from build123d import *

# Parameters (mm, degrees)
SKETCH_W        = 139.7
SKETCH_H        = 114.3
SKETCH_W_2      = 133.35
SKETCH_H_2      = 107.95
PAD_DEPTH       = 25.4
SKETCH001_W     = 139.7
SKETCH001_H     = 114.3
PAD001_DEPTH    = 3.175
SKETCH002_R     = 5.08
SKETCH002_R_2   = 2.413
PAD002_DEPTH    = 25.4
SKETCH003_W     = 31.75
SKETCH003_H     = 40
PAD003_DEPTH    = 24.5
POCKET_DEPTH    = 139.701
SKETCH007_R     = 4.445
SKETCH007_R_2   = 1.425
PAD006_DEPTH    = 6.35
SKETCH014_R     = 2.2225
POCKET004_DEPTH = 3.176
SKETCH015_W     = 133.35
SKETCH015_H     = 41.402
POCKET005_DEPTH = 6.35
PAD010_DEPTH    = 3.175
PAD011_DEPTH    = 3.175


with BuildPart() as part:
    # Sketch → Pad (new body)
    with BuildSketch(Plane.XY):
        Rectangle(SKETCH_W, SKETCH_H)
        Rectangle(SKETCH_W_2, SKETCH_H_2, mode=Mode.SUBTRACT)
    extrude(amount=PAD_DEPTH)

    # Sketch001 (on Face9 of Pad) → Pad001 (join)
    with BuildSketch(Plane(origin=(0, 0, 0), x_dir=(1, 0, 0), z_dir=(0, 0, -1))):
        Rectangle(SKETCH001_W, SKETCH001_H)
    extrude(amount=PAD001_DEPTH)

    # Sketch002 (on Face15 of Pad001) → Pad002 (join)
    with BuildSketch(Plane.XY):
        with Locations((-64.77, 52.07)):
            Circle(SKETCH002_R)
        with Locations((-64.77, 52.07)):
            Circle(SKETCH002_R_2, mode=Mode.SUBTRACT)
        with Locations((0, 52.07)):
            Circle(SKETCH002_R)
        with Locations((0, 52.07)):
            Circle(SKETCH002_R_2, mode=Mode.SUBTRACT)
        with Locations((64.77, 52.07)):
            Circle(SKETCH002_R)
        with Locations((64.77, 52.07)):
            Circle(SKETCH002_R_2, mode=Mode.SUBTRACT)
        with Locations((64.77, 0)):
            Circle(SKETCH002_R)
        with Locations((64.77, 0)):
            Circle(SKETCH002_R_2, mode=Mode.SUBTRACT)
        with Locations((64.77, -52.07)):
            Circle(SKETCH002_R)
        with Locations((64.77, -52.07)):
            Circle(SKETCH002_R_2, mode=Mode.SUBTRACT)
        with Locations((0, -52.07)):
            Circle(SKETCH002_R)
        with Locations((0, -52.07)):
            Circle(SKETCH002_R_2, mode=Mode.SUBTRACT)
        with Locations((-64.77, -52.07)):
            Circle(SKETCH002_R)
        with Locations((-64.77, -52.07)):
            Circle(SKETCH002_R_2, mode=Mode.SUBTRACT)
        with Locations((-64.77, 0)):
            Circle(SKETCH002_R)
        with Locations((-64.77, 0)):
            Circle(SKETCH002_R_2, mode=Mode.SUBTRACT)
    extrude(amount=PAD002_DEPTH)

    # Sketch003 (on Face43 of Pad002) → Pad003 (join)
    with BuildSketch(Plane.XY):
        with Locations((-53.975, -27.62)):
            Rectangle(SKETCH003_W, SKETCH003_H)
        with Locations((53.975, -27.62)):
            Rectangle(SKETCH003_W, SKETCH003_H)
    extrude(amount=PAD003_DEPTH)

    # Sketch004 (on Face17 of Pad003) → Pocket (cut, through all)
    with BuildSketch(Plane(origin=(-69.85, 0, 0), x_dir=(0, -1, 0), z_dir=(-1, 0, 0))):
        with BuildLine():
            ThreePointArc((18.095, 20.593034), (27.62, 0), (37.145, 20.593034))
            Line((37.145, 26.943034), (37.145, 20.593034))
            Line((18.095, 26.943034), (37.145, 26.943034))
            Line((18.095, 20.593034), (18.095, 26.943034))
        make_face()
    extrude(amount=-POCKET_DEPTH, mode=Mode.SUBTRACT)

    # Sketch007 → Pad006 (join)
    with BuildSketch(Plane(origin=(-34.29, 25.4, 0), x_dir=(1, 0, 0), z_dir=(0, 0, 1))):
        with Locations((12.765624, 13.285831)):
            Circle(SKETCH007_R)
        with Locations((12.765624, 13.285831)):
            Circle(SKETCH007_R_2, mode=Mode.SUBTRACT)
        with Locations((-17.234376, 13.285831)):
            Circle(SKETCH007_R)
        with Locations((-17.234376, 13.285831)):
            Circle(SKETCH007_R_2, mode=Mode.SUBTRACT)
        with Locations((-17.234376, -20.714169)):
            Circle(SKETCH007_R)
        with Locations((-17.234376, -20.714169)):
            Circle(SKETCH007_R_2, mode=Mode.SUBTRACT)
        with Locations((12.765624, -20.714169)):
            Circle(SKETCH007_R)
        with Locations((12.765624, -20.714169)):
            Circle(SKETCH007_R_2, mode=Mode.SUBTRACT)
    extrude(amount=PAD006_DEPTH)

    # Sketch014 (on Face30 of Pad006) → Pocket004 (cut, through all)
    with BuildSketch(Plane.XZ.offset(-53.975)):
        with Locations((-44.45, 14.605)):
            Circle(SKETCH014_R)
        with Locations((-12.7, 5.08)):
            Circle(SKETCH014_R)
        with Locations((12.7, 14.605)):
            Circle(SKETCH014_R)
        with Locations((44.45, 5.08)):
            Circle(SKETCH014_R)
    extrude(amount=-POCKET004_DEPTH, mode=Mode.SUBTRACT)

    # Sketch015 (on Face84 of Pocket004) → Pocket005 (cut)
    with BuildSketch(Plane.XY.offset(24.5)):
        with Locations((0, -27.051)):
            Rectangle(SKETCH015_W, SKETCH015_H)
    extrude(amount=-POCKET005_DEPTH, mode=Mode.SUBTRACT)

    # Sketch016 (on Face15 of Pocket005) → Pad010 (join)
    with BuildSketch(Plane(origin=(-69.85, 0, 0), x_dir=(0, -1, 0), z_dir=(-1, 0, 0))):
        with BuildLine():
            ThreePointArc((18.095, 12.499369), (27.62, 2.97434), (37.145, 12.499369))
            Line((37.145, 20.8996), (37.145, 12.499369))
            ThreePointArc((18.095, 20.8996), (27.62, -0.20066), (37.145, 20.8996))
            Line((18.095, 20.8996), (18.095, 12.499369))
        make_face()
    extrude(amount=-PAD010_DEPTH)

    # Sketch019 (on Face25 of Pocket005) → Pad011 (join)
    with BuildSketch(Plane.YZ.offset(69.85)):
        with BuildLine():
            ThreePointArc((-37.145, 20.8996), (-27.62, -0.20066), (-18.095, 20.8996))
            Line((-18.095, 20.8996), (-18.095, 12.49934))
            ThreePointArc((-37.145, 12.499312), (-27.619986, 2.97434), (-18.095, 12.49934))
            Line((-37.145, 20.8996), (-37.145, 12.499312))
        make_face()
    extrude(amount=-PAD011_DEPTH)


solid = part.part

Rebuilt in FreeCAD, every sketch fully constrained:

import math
import FreeCAD as App
import Part
import Sketcher
Q = App.Units.Quantity


def add_polygon(sketch, points):
    """Adds a closed chain of lines whose ends are joined by coincident constraints."""
    first, n = sketch.GeometryCount, len(points)
    for a, b in zip(points, points[1:] + points[:1]):
        sketch.addGeometry(Part.LineSegment(App.Vector(*a, 0), App.Vector(*b, 0)), False)
    for i in range(n):
        sketch.addConstraint(Sketcher.Constraint("Coincident", first + i, 2, first + (i + 1) % n, 1))

doc = App.newDocument("Part")
params = doc.addObject("Spreadsheet::Sheet", "Params")
for row, (alias, value) in enumerate([
    ("sketch1_width", "5.5 in"),
    ("sketch1_height", "4.5 in"),
    ("sketch1_width2", "5.25 in"),
    ("sketch1_height2", "4.25 in"),
    ("pad1_length", "1 in"),
    ("sketch2_width", "5.5 in"),
    ("sketch2_height", "4.5 in"),
    ("pad2_length", "0.125 in"),
    ("sketch3_diameter", "0.4 in"),
    ("sketch3_diameter2", "0.19 in"),
    ("pad3_length", "1 in"),
    ("sketch4_width", "1.25 in"),
    ("pad4_length", "24.5 mm"),
    ("sketch5_width", "0.75 in"),
    ("sketch5_height", "0.25 in"),
    ("sketch6_diameter", "0.35 in"),
    ("pad5_length", "0.25 in"),
    ("sketch7_diameter", "0.175 in"),
    ("sketch8_width", "5.25 in"),
    ("sketch8_height", "1.63 in"),
    ("pocket3_length", "0.25 in"),
    ("sketch9_radius", "0.5 in"),
    ("sketch9_radius2", "0.375 in"),
    ("pad6_length", "0.125 in"),
    ("sketch10_radius", "0.5 in"),
    ("sketch10_radius2", "0.375 in"),
    ("pad7_length", "0.125 in"),
], start=1):
    params.set(f"A{row}", alias)
    params.set(f"B{row}", "=" + value)
    params.setAlias(f"B{row}", alias)

body = doc.addObject("PartDesign::Body", "Body")

sketch1 = body.newObject("Sketcher::SketchObject", "Sketch")
sketch1.AttachmentSupport = (doc.getObject("XY_Plane"), [""])
sketch1.MapMode = "FlatFace"
add_polygon(sketch1, [(-70, 57), (-70, -57), (70, -57), (70, 57)])
add_polygon(sketch1, [(67, -54), (-67, -54), (-67, 54), (67, 54)])
sketch1.addConstraint(Sketcher.Constraint("Vertical", 0))
sketch1.addConstraint(Sketcher.Constraint("Horizontal", 1))
sketch1.addConstraint(Sketcher.Constraint("Vertical", 2))
sketch1.addConstraint(Sketcher.Constraint("Horizontal", 3))
sketch1.addConstraint(Sketcher.Constraint("Horizontal", 4))
sketch1.addConstraint(Sketcher.Constraint("Vertical", 5))
sketch1.addConstraint(Sketcher.Constraint("Horizontal", 6))
sketch1.addConstraint(Sketcher.Constraint("Vertical", 7))
sketch1.addConstraint(Sketcher.Constraint("Symmetric", 0, 2, 2, 2, -1, 1))
sketch1.addConstraint(Sketcher.Constraint("Symmetric", 4, 2, 6, 2, -1, 1))
sketch1.addConstraint(Sketcher.Constraint("DistanceX", 1, 1, 1, 2, Q("5.5 in")))
sketch1.addConstraint(Sketcher.Constraint("DistanceY", 0, 2, 0, 1, Q("4.5 in")))
sketch1.addConstraint(Sketcher.Constraint("DistanceX", 4, 2, 4, 1, Q("5.25 in")))
sketch1.addConstraint(Sketcher.Constraint("DistanceY", 5, 1, 5, 2, Q("4.25 in")))
sketch1.setExpression("Constraints[18]", "Params.sketch1_width")
sketch1.setExpression("Constraints[19]", "Params.sketch1_height")
sketch1.setExpression("Constraints[20]", "Params.sketch1_width2")
sketch1.setExpression("Constraints[21]", "Params.sketch1_height2")
pad1 = body.newObject("PartDesign::Pad", "Pad")
pad1.Profile = sketch1
pad1.setExpression("Length", "Params.pad1_length")

sketch2 = body.newObject("Sketcher::SketchObject", "Sketch001")
sketch2.AttachmentSupport = (doc.getObject("XY_Plane"), [""])
sketch2.MapMode = "FlatFace"
add_polygon(sketch2, [(-70, -57), (-70, 57), (70, 57), (70, -57)])
sketch2.addConstraint(Sketcher.Constraint("Vertical", 0))
sketch2.addConstraint(Sketcher.Constraint("Horizontal", 1))
sketch2.addConstraint(Sketcher.Constraint("Vertical", 2))
sketch2.addConstraint(Sketcher.Constraint("Horizontal", 3))
sketch2.addConstraint(Sketcher.Constraint("Symmetric", 0, 2, 2, 2, -1, 1))
sketch2.addConstraint(Sketcher.Constraint("DistanceX", 1, 1, 1, 2, Q("5.5 in")))
sketch2.addConstraint(Sketcher.Constraint("DistanceY", 0, 1, 0, 2, Q("4.5 in")))
sketch2.setExpression("Constraints[9]", "Params.sketch2_width")
sketch2.setExpression("Constraints[10]", "Params.sketch2_height")
pad2 = body.newObject("PartDesign::Pad", "Pad001")
pad2.Profile = sketch2
pad2.setExpression("Length", "Params.pad2_length")
pad2.Reversed = True

sketch3 = body.newObject("Sketcher::SketchObject", "Sketch002")
sketch3.AttachmentSupport = (doc.getObject("XY_Plane"), [""])
sketch3.MapMode = "FlatFace"
sketch3.addGeometry(Part.Circle(App.Vector(-64.8, 52.1, 0), App.Vector(0, 0, 1), 5.1), False)
sketch3.addGeometry(Part.Circle(App.Vector(-64.8, 52.1, 0), App.Vector(0, 0, 1), 2.4), False)
sketch3.addGeometry(Part.Circle(App.Vector(0, 52.1, 0), App.Vector(0, 0, 1), 5.1), False)
sketch3.addGeometry(Part.Circle(App.Vector(0, 52.1, 0), App.Vector(0, 0, 1), 2.4), False)
sketch3.addGeometry(Part.Circle(App.Vector(64.8, 52.1, 0), App.Vector(0, 0, 1), 5.1), False)
sketch3.addGeometry(Part.Circle(App.Vector(64.8, 52.1, 0), App.Vector(0, 0, 1), 2.4), False)
sketch3.addGeometry(Part.Circle(App.Vector(64.8, 0, 0), App.Vector(0, 0, 1), 5.1), False)
sketch3.addGeometry(Part.Circle(App.Vector(64.8, 0, 0), App.Vector(0, 0, 1), 2.4), False)
sketch3.addGeometry(Part.Circle(App.Vector(64.8, -52.1, 0), App.Vector(0, 0, 1), 5.1), False)
sketch3.addGeometry(Part.Circle(App.Vector(64.8, -52.1, 0), App.Vector(0, 0, 1), 2.4), False)
sketch3.addGeometry(Part.Circle(App.Vector(0, -52.1, 0), App.Vector(0, 0, 1), 5.1), False)
sketch3.addGeometry(Part.Circle(App.Vector(0, -52.1, 0), App.Vector(0, 0, 1), 2.4), False)
sketch3.addGeometry(Part.Circle(App.Vector(-64.8, -52.1, 0), App.Vector(0, 0, 1), 5.1), False)
sketch3.addGeometry(Part.Circle(App.Vector(-64.8, -52.1, 0), App.Vector(0, 0, 1), 2.4), False)
sketch3.addGeometry(Part.Circle(App.Vector(-64.8, 0, 0), App.Vector(0, 0, 1), 5.1), False)
sketch3.addGeometry(Part.Circle(App.Vector(-64.8, 0, 0), App.Vector(0, 0, 1), 2.4), False)
sketch3.addConstraint(Sketcher.Constraint("Coincident", 1, 3, 0, 3))
sketch3.addConstraint(Sketcher.Constraint("Coincident", 3, 3, 2, 3))
sketch3.addConstraint(Sketcher.Constraint("Coincident", 5, 3, 4, 3))
sketch3.addConstraint(Sketcher.Constraint("Coincident", 7, 3, 6, 3))
sketch3.addConstraint(Sketcher.Constraint("Coincident", 9, 3, 8, 3))
sketch3.addConstraint(Sketcher.Constraint("Coincident", 11, 3, 10, 3))
sketch3.addConstraint(Sketcher.Constraint("Coincident", 13, 3, 12, 3))
sketch3.addConstraint(Sketcher.Constraint("Coincident", 15, 3, 14, 3))
sketch3.addConstraint(Sketcher.Constraint("Equal", 0, 2))
sketch3.addConstraint(Sketcher.Constraint("Equal", 1, 3))
sketch3.addConstraint(Sketcher.Constraint("Equal", 2, 4))
sketch3.addConstraint(Sketcher.Constraint("Equal", 3, 5))
sketch3.addConstraint(Sketcher.Constraint("Equal", 4, 6))
sketch3.addConstraint(Sketcher.Constraint("Equal", 5, 7))
sketch3.addConstraint(Sketcher.Constraint("Equal", 6, 8))
sketch3.addConstraint(Sketcher.Constraint("Equal", 7, 9))
sketch3.addConstraint(Sketcher.Constraint("Equal", 8, 10))
sketch3.addConstraint(Sketcher.Constraint("Equal", 9, 11))
sketch3.addConstraint(Sketcher.Constraint("Equal", 10, 12))
sketch3.addConstraint(Sketcher.Constraint("Equal", 11, 13))
sketch3.addConstraint(Sketcher.Constraint("Equal", 12, 14))
sketch3.addConstraint(Sketcher.Constraint("Equal", 13, 15))
sketch3.addConstraint(Sketcher.Constraint("Symmetric", 0, 3, 8, 3, -1, 1))
sketch3.addConstraint(Sketcher.Constraint("Symmetric", 2, 3, 10, 3, -1, 1))
sketch3.addConstraint(Sketcher.Constraint("Symmetric", 4, 3, 12, 3, -1, 1))
sketch3.addConstraint(Sketcher.Constraint("Symmetric", 6, 3, 14, 3, -1, 1))
sketch3.addConstraint(Sketcher.Constraint("Symmetric", 0, 3, 4, 3, -2))
sketch3.addConstraint(Sketcher.Constraint("PointOnObject", 2, 3, -2))
sketch3.addConstraint(Sketcher.Constraint("PointOnObject", 6, 3, -1))
sketch3.addConstraint(Sketcher.Constraint("Horizontal", 1, 3, 2, 3))
sketch3.addConstraint(Sketcher.Constraint("Vertical", 5, 3, 6, 3))
sketch3.addConstraint(Sketcher.Constraint("Diameter", 0, Q("0.4 in")))
sketch3.addConstraint(Sketcher.Constraint("Diameter", 1, Q("0.19 in")))
sketch3.addConstraint(Sketcher.Constraint("DistanceX", 0, 3, 4, 3, Q("5.1 in")))
sketch3.addConstraint(Sketcher.Constraint("DistanceY", 8, 3, 4, 3, Q("4.1 in")))
sketch3.setExpression("Constraints[31]", "Params.sketch3_diameter")
sketch3.setExpression("Constraints[32]", "Params.sketch3_diameter2")
pad3 = body.newObject("PartDesign::Pad", "Pad002")
pad3.Profile = sketch3
pad3.setExpression("Length", "Params.pad3_length")

sketch4 = body.newObject("Sketcher::SketchObject", "Sketch003")
sketch4.AttachmentSupport = (doc.getObject("XY_Plane"), [""])
sketch4.MapMode = "FlatFace"
add_polygon(sketch4, [(-70, -8), (-70, -48), (-38, -48), (-38, -8)])
add_polygon(sketch4, [(38, -8), (38, -48), (70, -48), (70, -8)])
sketch4.addConstraint(Sketcher.Constraint("Vertical", 0))
sketch4.addConstraint(Sketcher.Constraint("Horizontal", 1))
sketch4.addConstraint(Sketcher.Constraint("Vertical", 2))
sketch4.addConstraint(Sketcher.Constraint("Horizontal", 3))
sketch4.addConstraint(Sketcher.Constraint("Vertical", 4))
sketch4.addConstraint(Sketcher.Constraint("Horizontal", 5))
sketch4.addConstraint(Sketcher.Constraint("Vertical", 6))
sketch4.addConstraint(Sketcher.Constraint("Horizontal", 7))
sketch4.addConstraint(Sketcher.Constraint("Symmetric", 1, 2, 4, 2, -2))
sketch4.addConstraint(Sketcher.Constraint("Symmetric", 3, 2, 6, 2, -2))
sketch4.addConstraint(Sketcher.Constraint("DistanceX", 1, 2, 4, 2, Q("3 in")))
sketch4.addConstraint(Sketcher.Constraint("DistanceX", 1, 1, 1, 2, Q("1.25 in")))
sketch4.addConstraint(Sketcher.Constraint("DistanceY", 2, 2, -1, 1, Q("0.3 in")))
sketch4.addConstraint(Sketcher.Constraint("DistanceY", 0, 2, 0, 1, 40.0))
sketch4.setExpression("Constraints[19]", "Params.sketch4_width")
pad4 = body.newObject("PartDesign::Pad", "Pad003")
pad4.Profile = sketch4
pad4.setExpression("Length", "Params.pad4_length")

sketch5 = body.newObject("Sketcher::SketchObject", "Sketch004")
sketch5.AttachmentSupport = (doc.getObject("YZ_Plane"), [""])
sketch5.MapMode = "FlatFace"
sketch5.AttachmentOffset = App.Placement(App.Vector(0, 0, -2.75 * 25.4), App.Rotation())
sketch5.addGeometry(Part.ArcOfCircle(Part.Circle(App.Vector(-28, 12, 0), App.Vector(0, 0, 1), 12), math.radians(140), math.radians(400)), False)
sketch5.addGeometry(Part.LineSegment(App.Vector(-37, 21, 0), App.Vector(-37, 27, 0)), False)
sketch5.addGeometry(Part.LineSegment(App.Vector(-37, 27, 0), App.Vector(-18, 27, 0)), False)
sketch5.addGeometry(Part.LineSegment(App.Vector(-18, 27, 0), App.Vector(-18, 21, 0)), False)
sketch5.addConstraint(Sketcher.Constraint("Coincident", 0, 1, 1, 1))
sketch5.addConstraint(Sketcher.Constraint("Coincident", 1, 2, 2, 1))
sketch5.addConstraint(Sketcher.Constraint("Coincident", 2, 2, 3, 1))
sketch5.addConstraint(Sketcher.Constraint("Coincident", 3, 2, 0, 2))
sketch5.addConstraint(Sketcher.Constraint("Vertical", 1))
sketch5.addConstraint(Sketcher.Constraint("Horizontal", 2))
sketch5.addConstraint(Sketcher.Constraint("Vertical", 3))
sketch5.addConstraint(Sketcher.Constraint("Horizontal", 0, 1, 3, 2))
sketch5.addConstraint(Sketcher.Constraint("DistanceX", 2, 1, 2, 2, Q("0.75 in")))
sketch5.addConstraint(Sketcher.Constraint("DistanceY", 1, 1, 1, 2, Q("0.25 in")))
sketch5.addConstraint(Sketcher.Constraint("Radius", 0, Q("0.4921 in")))
sketch5.addConstraint(Sketcher.Constraint("DistanceY", -1, 1, 0, 3, Q("0.4921 in")))
sketch5.addConstraint(Sketcher.Constraint("DistanceX", 0, 3, -1, 1, 27.62))
sketch5.setExpression("Constraints[8]", "Params.sketch5_width")
sketch5.setExpression("Constraints[9]", "Params.sketch5_height")
pocket1 = body.newObject("PartDesign::Pocket", "Pocket")
pocket1.Profile = sketch5
pocket1.Type = "ThroughAll"
pocket1.Reversed = True

sketch6 = body.newObject("Sketcher::SketchObject", "Sketch005")
sketch6.AttachmentSupport = (doc.getObject("XY_Plane"), [""])
sketch6.MapMode = "FlatFace"
sketch6.addGeometry(Part.Circle(App.Vector(-21.5, 38.7, 0), App.Vector(0, 0, 1), 4.4), False)
sketch6.addGeometry(Part.Circle(App.Vector(-21.5, 38.7, 0), App.Vector(0, 0, 1), 1.4), False)
sketch6.addGeometry(Part.Circle(App.Vector(-51.5, 38.7, 0), App.Vector(0, 0, 1), 4.4), False)
sketch6.addGeometry(Part.Circle(App.Vector(-51.5, 38.7, 0), App.Vector(0, 0, 1), 1.4), False)
sketch6.addGeometry(Part.Circle(App.Vector(-51.5, 4.7, 0), App.Vector(0, 0, 1), 4.4), False)
sketch6.addGeometry(Part.Circle(App.Vector(-51.5, 4.7, 0), App.Vector(0, 0, 1), 1.4), False)
sketch6.addGeometry(Part.Circle(App.Vector(-21.5, 4.7, 0), App.Vector(0, 0, 1), 4.4), False)
sketch6.addGeometry(Part.Circle(App.Vector(-21.5, 4.7, 0), App.Vector(0, 0, 1), 1.4), False)
sketch6.addConstraint(Sketcher.Constraint("Coincident", 1, 3, 0, 3))
sketch6.addConstraint(Sketcher.Constraint("Coincident", 3, 3, 2, 3))
sketch6.addConstraint(Sketcher.Constraint("Coincident", 5, 3, 4, 3))
sketch6.addConstraint(Sketcher.Constraint("Coincident", 7, 3, 6, 3))
sketch6.addConstraint(Sketcher.Constraint("Equal", 0, 2))
sketch6.addConstraint(Sketcher.Constraint("Equal", 1, 3))
sketch6.addConstraint(Sketcher.Constraint("Equal", 2, 4))
sketch6.addConstraint(Sketcher.Constraint("Equal", 3, 5))
sketch6.addConstraint(Sketcher.Constraint("Equal", 4, 6))
sketch6.addConstraint(Sketcher.Constraint("Equal", 5, 7))
sketch6.addConstraint(Sketcher.Constraint("Horizontal", 1, 3, 2, 3))
sketch6.addConstraint(Sketcher.Constraint("Horizontal", 5, 3, 6, 3))
sketch6.addConstraint(Sketcher.Constraint("Vertical", 3, 3, 4, 3))
sketch6.addConstraint(Sketcher.Constraint("Vertical", 1, 3, 6, 3))
sketch6.addConstraint(Sketcher.Constraint("Diameter", 0, Q("0.35 in")))
sketch6.addConstraint(Sketcher.Constraint("Diameter", 1, 2.85))
sketch6.addConstraint(Sketcher.Constraint("DistanceX", 2, 3, 0, 3, 30.0))
sketch6.addConstraint(Sketcher.Constraint("DistanceY", 4, 3, 2, 3, 34.0))
sketch6.addConstraint(Sketcher.Constraint("DistanceY", -1, 1, 0, 3, 38.685831))
sketch6.addConstraint(Sketcher.Constraint("DistanceX", 0, 3, -1, 1, 21.524376))
sketch6.setExpression("Constraints[14]", "Params.sketch6_diameter")
pad5 = body.newObject("PartDesign::Pad", "Pad004")
pad5.Profile = sketch6
pad5.setExpression("Length", "Params.pad5_length")

sketch7 = body.newObject("Sketcher::SketchObject", "Sketch006")
sketch7.AttachmentSupport = (doc.getObject("XZ_Plane"), [""])
sketch7.MapMode = "FlatFace"
sketch7.AttachmentOffset = App.Placement(App.Vector(0, 0, -2.125 * 25.4), App.Rotation())
sketch7.addGeometry(Part.Circle(App.Vector(-44.5, 14.6, 0), App.Vector(0, 0, 1), 2.2), False)
sketch7.addGeometry(Part.Circle(App.Vector(-12.7, 5.1, 0), App.Vector(0, 0, 1), 2.2), False)
sketch7.addGeometry(Part.Circle(App.Vector(12.7, 14.6, 0), App.Vector(0, 0, 1), 2.2), False)
sketch7.addGeometry(Part.Circle(App.Vector(44.5, 5.1, 0), App.Vector(0, 0, 1), 2.2), False)
sketch7.addConstraint(Sketcher.Constraint("Equal", 0, 1))
sketch7.addConstraint(Sketcher.Constraint("Equal", 1, 2))
sketch7.addConstraint(Sketcher.Constraint("Equal", 2, 3))
sketch7.addConstraint(Sketcher.Constraint("Horizontal", 0, 3, 2, 3))
sketch7.addConstraint(Sketcher.Constraint("Horizontal", 1, 3, 3, 3))
sketch7.addConstraint(Sketcher.Constraint("Diameter", 0, Q("0.175 in")))
sketch7.addConstraint(Sketcher.Constraint("DistanceX", 1, 3, 2, 3, Q("1 in")))
sketch7.addConstraint(Sketcher.Constraint("DistanceX", 1, 3, -1, 1, Q("0.5 in")))
sketch7.addConstraint(Sketcher.Constraint("DistanceY", -1, 1, 1, 3, Q("0.2 in")))
sketch7.addConstraint(Sketcher.Constraint("DistanceX", 0, 3, 3, 3, Q("3.5 in")))
sketch7.addConstraint(Sketcher.Constraint("DistanceX", 0, 3, -1, 1, Q("1.75 in")))
sketch7.addConstraint(Sketcher.Constraint("DistanceY", -1, 1, 0, 3, Q("0.575 in")))
sketch7.setExpression("Constraints[5]", "Params.sketch7_diameter")
pocket2 = body.newObject("PartDesign::Pocket", "Pocket001")
pocket2.Profile = sketch7
pocket2.Type = "ThroughAll"

sketch8 = body.newObject("Sketcher::SketchObject", "Sketch007")
sketch8.AttachmentSupport = (doc.getObject("XY_Plane"), [""])
sketch8.MapMode = "FlatFace"
sketch8.AttachmentOffset = App.Placement(App.Vector(0, 0, 24.5), App.Rotation())
add_polygon(sketch8, [(-67, -6), (-67, -48), (67, -48), (67, -6)])
sketch8.addConstraint(Sketcher.Constraint("Vertical", 0))
sketch8.addConstraint(Sketcher.Constraint("Horizontal", 1))
sketch8.addConstraint(Sketcher.Constraint("Vertical", 2))
sketch8.addConstraint(Sketcher.Constraint("Horizontal", 3))
sketch8.addConstraint(Sketcher.Constraint("DistanceX", 1, 1, 1, 2, Q("5.25 in")))
sketch8.addConstraint(Sketcher.Constraint("DistanceY", 0, 2, 0, 1, Q("1.63 in")))
sketch8.addConstraint(Sketcher.Constraint("DistanceY", 0, 2, -1, 1, Q("1.88 in")))
sketch8.addConstraint(Sketcher.Constraint("DistanceX", 0, 2, -1, 1, Q("2.625 in")))
sketch8.setExpression("Constraints[8]", "Params.sketch8_width")
sketch8.setExpression("Constraints[9]", "Params.sketch8_height")
pocket3 = body.newObject("PartDesign::Pocket", "Pocket002")
pocket3.Profile = sketch8
pocket3.setExpression("Length", "Params.pocket3_length")

sketch9 = body.newObject("Sketcher::SketchObject", "Sketch008")
sketch9.AttachmentSupport = (doc.getObject("YZ_Plane"), [""])
sketch9.MapMode = "FlatFace"
sketch9.AttachmentOffset = App.Placement(App.Vector(0, 0, -2.75 * 25.4), App.Rotation())
sketch9.addGeometry(Part.ArcOfCircle(Part.Circle(App.Vector(-28, 12, 0), App.Vector(0, 0, 1), 10), math.radians(180), math.radians(360)), False)
sketch9.addGeometry(Part.LineSegment(App.Vector(-18, 12, 0), App.Vector(-18, 21, 0)), False)
sketch9.addGeometry(Part.ArcOfCircle(Part.Circle(App.Vector(-28, 12, 0), App.Vector(0, 0, 1), 13), math.radians(139), math.radians(401)), False)
sketch9.addGeometry(Part.LineSegment(App.Vector(-37, 21, 0), App.Vector(-37, 12, 0)), False)
sketch9.addConstraint(Sketcher.Constraint("Coincident", 0, 2, 1, 1))
sketch9.addConstraint(Sketcher.Constraint("Coincident", 1, 2, 2, 2))
sketch9.addConstraint(Sketcher.Constraint("Coincident", 2, 1, 3, 1))
sketch9.addConstraint(Sketcher.Constraint("Coincident", 3, 2, 0, 1))
sketch9.addConstraint(Sketcher.Constraint("Vertical", 1))
sketch9.addConstraint(Sketcher.Constraint("Vertical", 3))
sketch9.addConstraint(Sketcher.Constraint("Coincident", 2, 3, 0, 3))
sketch9.addConstraint(Sketcher.Constraint("Horizontal", 0, 2, 3, 2))
sketch9.addConstraint(Sketcher.Constraint("Radius", 2, Q("0.5 in")))
sketch9.addConstraint(Sketcher.Constraint("Radius", 0, Q("0.375 in")))
sketch9.addConstraint(Sketcher.Constraint("DistanceY", -1, 1, 0, 3, Q("0.4921 in")))
sketch9.addConstraint(Sketcher.Constraint("DistanceY", 1, 1, 1, 2, 8.400231))
sketch9.addConstraint(Sketcher.Constraint("DistanceX", 0, 3, -1, 1, 27.62))
sketch9.setExpression("Constraints[8]", "Params.sketch9_radius")
sketch9.setExpression("Constraints[9]", "Params.sketch9_radius2")
pad6 = body.newObject("PartDesign::Pad", "Pad005")
pad6.Profile = sketch9
pad6.setExpression("Length", "Params.pad6_length")

sketch10 = body.newObject("Sketcher::SketchObject", "Sketch009")
sketch10.AttachmentSupport = (doc.getObject("YZ_Plane"), [""])
sketch10.MapMode = "FlatFace"
sketch10.AttachmentOffset = App.Placement(App.Vector(0, 0, 2.75 * 25.4), App.Rotation())
sketch10.addGeometry(Part.ArcOfCircle(Part.Circle(App.Vector(-28, 12, 0), App.Vector(0, 0, 1), 13), math.radians(139), math.radians(401)), False)
sketch10.addGeometry(Part.LineSegment(App.Vector(-18, 21, 0), App.Vector(-18, 12, 0)), False)
sketch10.addGeometry(Part.ArcOfCircle(Part.Circle(App.Vector(-28, 12, 0), App.Vector(0, 0, 1), 10), math.radians(-180), math.radians(0)), False)
sketch10.addGeometry(Part.LineSegment(App.Vector(-37, 12, 0), App.Vector(-37, 21, 0)), False)
sketch10.addConstraint(Sketcher.Constraint("Coincident", 0, 2, 1, 1))
sketch10.addConstraint(Sketcher.Constraint("Tangent", 1, 2, 2, 2))
sketch10.addConstraint(Sketcher.Constraint("Coincident", 2, 1, 3, 1))
sketch10.addConstraint(Sketcher.Constraint("Coincident", 3, 2, 0, 1))
sketch10.addConstraint(Sketcher.Constraint("Vertical", 1))
sketch10.addConstraint(Sketcher.Constraint("Vertical", 3))
sketch10.addConstraint(Sketcher.Constraint("Coincident", 2, 3, 0, 3))
sketch10.addConstraint(Sketcher.Constraint("Radius", 0, Q("0.5 in")))
sketch10.addConstraint(Sketcher.Constraint("Radius", 2, Q("0.375 in")))
sketch10.addConstraint(Sketcher.Constraint("DistanceY", -1, 1, 0, 3, Q("0.4921 in")))
sketch10.addConstraint(Sketcher.Constraint("DistanceX", 0, 3, -1, 1, 27.62))
sketch10.addConstraint(Sketcher.Constraint("DistanceY", 3, 1, 3, 2, 8.400288))
sketch10.setExpression("Constraints[7]", "Params.sketch10_radius")
sketch10.setExpression("Constraints[8]", "Params.sketch10_radius2")
pad7 = body.newObject("PartDesign::Pad", "Pad006")
pad7.Profile = sketch10
pad7.setExpression("Length", "Params.pad7_length")
pad7.Reversed = True

doc.recompute()
